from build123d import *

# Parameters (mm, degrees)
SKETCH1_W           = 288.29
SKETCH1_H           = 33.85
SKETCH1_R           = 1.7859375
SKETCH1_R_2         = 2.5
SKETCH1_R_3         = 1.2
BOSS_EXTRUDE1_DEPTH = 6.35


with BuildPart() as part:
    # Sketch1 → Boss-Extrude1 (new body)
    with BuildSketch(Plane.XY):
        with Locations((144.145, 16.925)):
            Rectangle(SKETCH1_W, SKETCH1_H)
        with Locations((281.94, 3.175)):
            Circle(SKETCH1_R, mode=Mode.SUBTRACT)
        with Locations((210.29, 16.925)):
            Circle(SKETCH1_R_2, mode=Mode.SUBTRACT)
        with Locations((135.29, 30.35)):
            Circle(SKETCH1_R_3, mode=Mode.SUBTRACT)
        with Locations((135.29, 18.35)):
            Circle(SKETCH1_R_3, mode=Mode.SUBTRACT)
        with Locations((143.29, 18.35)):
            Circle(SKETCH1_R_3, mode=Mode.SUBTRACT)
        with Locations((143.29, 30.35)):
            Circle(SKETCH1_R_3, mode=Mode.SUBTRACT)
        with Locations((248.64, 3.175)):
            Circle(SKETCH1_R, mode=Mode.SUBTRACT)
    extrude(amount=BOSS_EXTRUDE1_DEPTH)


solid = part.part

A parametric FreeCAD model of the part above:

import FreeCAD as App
import Part
import Sketcher

V = App.Vector
Q = App.Units.Quantity

doc = App.newDocument("Part")
params = doc.addObject("Spreadsheet::Sheet", "Params")
for row, (alias, value) in enumerate([
    ("sketch1_diameter", "0.140625 in"),
    ("sketch1_width", "11.35 in"),
    ("pad1_length", "0.25 in"),
], start=1):
    params.set(f"A{row}", alias)
    params.set(f"B{row}", "=" + value)
    params.setAlias(f"B{row}", alias)

body = doc.addObject("PartDesign::Body", "Body")

# Sketch on XY plane
sketch1 = body.newObject("Sketcher::SketchObject", "Sketch")
sketch1.AttachmentSupport = (doc.getObject("XY_Plane"), [""])
sketch1.MapMode = "FlatFace"
sketch1.addGeometry(Part.LineSegment(V(0, 33.9, 0), V(0, 0, 0)), False)
sketch1.addGeometry(Part.LineSegment(V(0, 0, 0), V(288.3, 0, 0)), False)
sketch1.addGeometry(Part.LineSegment(V(288.3, 0, 0), V(288.3, 33.9, 0)), False)
sketch1.addGeometry(Part.LineSegment(V(288.3, 33.9, 0), V(0, 33.9, 0)), False)
sketch1.addGeometry(Part.Circle(V(248.6, 3.2, 0), V(0, 0, 1), 1.8), False)
sketch1.addGeometry(Part.Circle(V(281.9, 3.2, 0), V(0, 0, 1), 1.8), False)
sketch1.addGeometry(Part.Circle(V(135.3, 18.4, 0), V(0, 0, 1), 1.2), False)
sketch1.addGeometry(Part.Circle(V(143.3, 18.4, 0), V(0, 0, 1), 1.2), False)
sketch1.addGeometry(Part.Circle(V(135.3, 30.4, 0), V(0, 0, 1), 1.2), False)
sketch1.addGeometry(Part.Circle(V(143.3, 30.4, 0), V(0, 0, 1), 1.2), False)
sketch1.addGeometry(Part.Circle(V(210.3, 16.9, 0), V(0, 0, 1), 2.5), False)
sketch1.addConstraint(Sketcher.Constraint("Coincident", 0, 2, 1, 1))
sketch1.addConstraint(Sketcher.Constraint("Coincident", 1, 2, 2, 1))
sketch1.addConstraint(Sketcher.Constraint("Coincident", 2, 2, 3, 1))
sketch1.addConstraint(Sketcher.Constraint("Coincident", 3, 2, 0, 1))
sketch1.addConstraint(Sketcher.Constraint("Vertical", 0))
sketch1.addConstraint(Sketcher.Constraint("Horizontal", 1))
sketch1.addConstraint(Sketcher.Constraint("Vertical", 2))
sketch1.addConstraint(Sketcher.Constraint("Horizontal", 3))
sketch1.addConstraint(Sketcher.Constraint("Coincident", 0, 2, -1, 1))
sketch1.addConstraint(Sketcher.Constraint("Equal", 4, 5))
sketch1.addConstraint(Sketcher.Constraint("Equal", 6, 7))
sketch1.addConstraint(Sketcher.Constraint("Equal", 7, 8))
sketch1.addConstraint(Sketcher.Constraint("Equal", 8, 9))
sketch1.addConstraint(Sketcher.Constraint("Horizontal", 4, 3, 5, 3))
sketch1.addConstraint(Sketcher.Constraint("Horizontal", 6, 3, 7, 3))
sketch1.addConstraint(Sketcher.Constraint("Horizontal", 8, 3, 9, 3))
sketch1.addConstraint(Sketcher.Constraint("Vertical", 6, 3, 8, 3))
sketch1.addConstraint(Sketcher.Constraint("Vertical", 7, 3, 9, 3))
sketch1.addConstraint(Sketcher.Constraint("Diameter", 4, Q("0.140625 in")))
sketch1.addConstraint(Sketcher.Constraint("DistanceX", 1, 1, 1, 2, Q("11.35 in")))
sketch1.addConstraint(Sketcher.Constraint("DistanceX", -1, 1, 5, 3, Q("11.1 in")))
sketch1.addConstraint(Sketcher.Constraint("Diameter", 6, Q("2.4 mm")))
sketch1.addConstraint(Sketcher.Constraint("Diameter", 10, Q("5 mm")))
sketch1.addConstraint(Sketcher.Constraint("DistanceY", -1, 1, 4, 3, Q("0.125 in")))
sketch1.addConstraint(Sketcher.Constraint("DistanceY", 0, 2, 0, 1, Q("33.85 mm")))
sketch1.addConstraint(Sketcher.Constraint("DistanceX", -1, 1, 4, 3, Q("248.64 mm")))
sketch1.addConstraint(Sketcher.Constraint("DistanceX", -1, 1, 6, 3, Q("135.29 mm")))
sketch1.addConstraint(Sketcher.Constraint("DistanceY", -1, 1, 6, 3, Q("18.35 mm")))
sketch1.addConstraint(Sketcher.Constraint("DistanceX", -1, 1, 7, 3, Q("143.29 mm")))
sketch1.addConstraint(Sketcher.Constraint("DistanceY", -1, 1, 8, 3, Q("30.35 mm")))
sketch1.addConstraint(Sketcher.Constraint("DistanceX", -1, 1, 10, 3, Q("210.29 mm")))
sketch1.addConstraint(Sketcher.Constraint("DistanceY", -1, 1, 10, 3, Q("16.925 mm")))
sketch1.setExpression("Constraints[18]", "Params.sketch1_diameter")
sketch1.setExpression("Constraints[19]", "Params.sketch1_width")
pad1 = body.newObject("PartDesign::Pad", "Pad")
pad1.Profile = sketch1
pad1.setExpression("Length", "Params.pad1_length")

doc.recompute()
